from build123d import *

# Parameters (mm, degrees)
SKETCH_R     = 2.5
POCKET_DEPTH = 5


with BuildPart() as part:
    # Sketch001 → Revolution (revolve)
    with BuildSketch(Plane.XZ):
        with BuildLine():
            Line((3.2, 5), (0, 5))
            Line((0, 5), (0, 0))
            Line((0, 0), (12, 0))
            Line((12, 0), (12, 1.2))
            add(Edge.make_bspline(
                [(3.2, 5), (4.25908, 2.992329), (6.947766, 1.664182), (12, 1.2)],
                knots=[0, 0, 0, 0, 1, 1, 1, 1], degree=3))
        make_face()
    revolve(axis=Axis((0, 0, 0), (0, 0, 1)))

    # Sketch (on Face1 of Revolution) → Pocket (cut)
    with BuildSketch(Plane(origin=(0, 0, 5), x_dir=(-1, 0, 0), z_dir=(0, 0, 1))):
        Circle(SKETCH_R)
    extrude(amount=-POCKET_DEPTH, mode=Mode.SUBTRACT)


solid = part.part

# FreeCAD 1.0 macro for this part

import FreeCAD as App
import Part
import Sketcher
from FreeCAD import Vector

doc = App.newDocument("Part")
body = doc.addObject("PartDesign::Body", "Body")

# Sketch on XZ plane
sketch1 = body.newObject("Sketcher::SketchObject", "Sketch")
sketch1.AttachmentSupport = (doc.getObject("XZ_Plane"), [""])
sketch1.MapMode = "FlatFace"
sketch1.addGeometry([
    Part.LineSegment(Vector(3.2, 5, 0), Vector(0, 5, 0)),  # 0
    Part.LineSegment(Vector(0, 5, 0), Vector(0, 0, 0)),  # 1
    Part.LineSegment(Vector(0, 0, 0), Vector(12, 0, 0)),  # 2
    Part.LineSegment(Vector(12, 0, 0), Vector(12, 1.2, 0)),  # 3
    Part.BSplineCurve([Vector(3.2, 5, 0), Vector(4.25908, 2.992329, 0), Vector(6.947766, 1.664182, 0), Vector(12, 1.2, 0)], [4, 4], [0, 1], False, 3, [1, 1, 1, 1], False),  # 4
], False)
sketch1.addConstraint([
    Sketcher.Constraint("Block", 4),
    Sketcher.Constraint("Coincident", 0, 2, 1, 1),
    Sketcher.Constraint("Coincident", 1, 2, 2, 1),
    Sketcher.Constraint("Coincident", 2, 2, 3, 1),
    Sketcher.Constraint("Coincident", 3, 2, 4, 2),
    Sketcher.Constraint("Coincident", 4, 1, 0, 1),
    Sketcher.Constraint("Horizontal", 0),
    Sketcher.Constraint("Vertical", 1),
    Sketcher.Constraint("Horizontal", 2),
    Sketcher.Constraint("Vertical", 3),
    Sketcher.Constraint("Coincident", 1, 2, -1, 1),
])
revolution = body.newObject("PartDesign::Revolution", "Revolution")
revolution.Profile = sketch1
revolution.ReferenceAxis = (sketch1, ["V_Axis"])
revolution.Angle = 360

# Sketch on XY plane
sketch2 = body.newObject("Sketcher::SketchObject", "Sketch001")
sketch2.AttachmentSupport = (doc.getObject("XY_Plane"), [""])
sketch2.MapMode = "FlatFace"
sketch2.AttachmentOffset = App.Placement(Vector(0, 0, 5), App.Rotation())
sketch2.addGeometry(Part.Circle(Vector(0, 0, 0), Vector(0, 0, 1), 2.5), False)
sketch2.addConstraint([
    Sketcher.Constraint("Coincident", 0, 3, -1, 1),
    Sketcher.Constraint("Diameter", 0, 5.0),
])
pocket1 = body.newObject("PartDesign::Pocket", "Pocket")
pocket1.Profile = sketch2
pocket1.Length = 5

doc.recompute()
